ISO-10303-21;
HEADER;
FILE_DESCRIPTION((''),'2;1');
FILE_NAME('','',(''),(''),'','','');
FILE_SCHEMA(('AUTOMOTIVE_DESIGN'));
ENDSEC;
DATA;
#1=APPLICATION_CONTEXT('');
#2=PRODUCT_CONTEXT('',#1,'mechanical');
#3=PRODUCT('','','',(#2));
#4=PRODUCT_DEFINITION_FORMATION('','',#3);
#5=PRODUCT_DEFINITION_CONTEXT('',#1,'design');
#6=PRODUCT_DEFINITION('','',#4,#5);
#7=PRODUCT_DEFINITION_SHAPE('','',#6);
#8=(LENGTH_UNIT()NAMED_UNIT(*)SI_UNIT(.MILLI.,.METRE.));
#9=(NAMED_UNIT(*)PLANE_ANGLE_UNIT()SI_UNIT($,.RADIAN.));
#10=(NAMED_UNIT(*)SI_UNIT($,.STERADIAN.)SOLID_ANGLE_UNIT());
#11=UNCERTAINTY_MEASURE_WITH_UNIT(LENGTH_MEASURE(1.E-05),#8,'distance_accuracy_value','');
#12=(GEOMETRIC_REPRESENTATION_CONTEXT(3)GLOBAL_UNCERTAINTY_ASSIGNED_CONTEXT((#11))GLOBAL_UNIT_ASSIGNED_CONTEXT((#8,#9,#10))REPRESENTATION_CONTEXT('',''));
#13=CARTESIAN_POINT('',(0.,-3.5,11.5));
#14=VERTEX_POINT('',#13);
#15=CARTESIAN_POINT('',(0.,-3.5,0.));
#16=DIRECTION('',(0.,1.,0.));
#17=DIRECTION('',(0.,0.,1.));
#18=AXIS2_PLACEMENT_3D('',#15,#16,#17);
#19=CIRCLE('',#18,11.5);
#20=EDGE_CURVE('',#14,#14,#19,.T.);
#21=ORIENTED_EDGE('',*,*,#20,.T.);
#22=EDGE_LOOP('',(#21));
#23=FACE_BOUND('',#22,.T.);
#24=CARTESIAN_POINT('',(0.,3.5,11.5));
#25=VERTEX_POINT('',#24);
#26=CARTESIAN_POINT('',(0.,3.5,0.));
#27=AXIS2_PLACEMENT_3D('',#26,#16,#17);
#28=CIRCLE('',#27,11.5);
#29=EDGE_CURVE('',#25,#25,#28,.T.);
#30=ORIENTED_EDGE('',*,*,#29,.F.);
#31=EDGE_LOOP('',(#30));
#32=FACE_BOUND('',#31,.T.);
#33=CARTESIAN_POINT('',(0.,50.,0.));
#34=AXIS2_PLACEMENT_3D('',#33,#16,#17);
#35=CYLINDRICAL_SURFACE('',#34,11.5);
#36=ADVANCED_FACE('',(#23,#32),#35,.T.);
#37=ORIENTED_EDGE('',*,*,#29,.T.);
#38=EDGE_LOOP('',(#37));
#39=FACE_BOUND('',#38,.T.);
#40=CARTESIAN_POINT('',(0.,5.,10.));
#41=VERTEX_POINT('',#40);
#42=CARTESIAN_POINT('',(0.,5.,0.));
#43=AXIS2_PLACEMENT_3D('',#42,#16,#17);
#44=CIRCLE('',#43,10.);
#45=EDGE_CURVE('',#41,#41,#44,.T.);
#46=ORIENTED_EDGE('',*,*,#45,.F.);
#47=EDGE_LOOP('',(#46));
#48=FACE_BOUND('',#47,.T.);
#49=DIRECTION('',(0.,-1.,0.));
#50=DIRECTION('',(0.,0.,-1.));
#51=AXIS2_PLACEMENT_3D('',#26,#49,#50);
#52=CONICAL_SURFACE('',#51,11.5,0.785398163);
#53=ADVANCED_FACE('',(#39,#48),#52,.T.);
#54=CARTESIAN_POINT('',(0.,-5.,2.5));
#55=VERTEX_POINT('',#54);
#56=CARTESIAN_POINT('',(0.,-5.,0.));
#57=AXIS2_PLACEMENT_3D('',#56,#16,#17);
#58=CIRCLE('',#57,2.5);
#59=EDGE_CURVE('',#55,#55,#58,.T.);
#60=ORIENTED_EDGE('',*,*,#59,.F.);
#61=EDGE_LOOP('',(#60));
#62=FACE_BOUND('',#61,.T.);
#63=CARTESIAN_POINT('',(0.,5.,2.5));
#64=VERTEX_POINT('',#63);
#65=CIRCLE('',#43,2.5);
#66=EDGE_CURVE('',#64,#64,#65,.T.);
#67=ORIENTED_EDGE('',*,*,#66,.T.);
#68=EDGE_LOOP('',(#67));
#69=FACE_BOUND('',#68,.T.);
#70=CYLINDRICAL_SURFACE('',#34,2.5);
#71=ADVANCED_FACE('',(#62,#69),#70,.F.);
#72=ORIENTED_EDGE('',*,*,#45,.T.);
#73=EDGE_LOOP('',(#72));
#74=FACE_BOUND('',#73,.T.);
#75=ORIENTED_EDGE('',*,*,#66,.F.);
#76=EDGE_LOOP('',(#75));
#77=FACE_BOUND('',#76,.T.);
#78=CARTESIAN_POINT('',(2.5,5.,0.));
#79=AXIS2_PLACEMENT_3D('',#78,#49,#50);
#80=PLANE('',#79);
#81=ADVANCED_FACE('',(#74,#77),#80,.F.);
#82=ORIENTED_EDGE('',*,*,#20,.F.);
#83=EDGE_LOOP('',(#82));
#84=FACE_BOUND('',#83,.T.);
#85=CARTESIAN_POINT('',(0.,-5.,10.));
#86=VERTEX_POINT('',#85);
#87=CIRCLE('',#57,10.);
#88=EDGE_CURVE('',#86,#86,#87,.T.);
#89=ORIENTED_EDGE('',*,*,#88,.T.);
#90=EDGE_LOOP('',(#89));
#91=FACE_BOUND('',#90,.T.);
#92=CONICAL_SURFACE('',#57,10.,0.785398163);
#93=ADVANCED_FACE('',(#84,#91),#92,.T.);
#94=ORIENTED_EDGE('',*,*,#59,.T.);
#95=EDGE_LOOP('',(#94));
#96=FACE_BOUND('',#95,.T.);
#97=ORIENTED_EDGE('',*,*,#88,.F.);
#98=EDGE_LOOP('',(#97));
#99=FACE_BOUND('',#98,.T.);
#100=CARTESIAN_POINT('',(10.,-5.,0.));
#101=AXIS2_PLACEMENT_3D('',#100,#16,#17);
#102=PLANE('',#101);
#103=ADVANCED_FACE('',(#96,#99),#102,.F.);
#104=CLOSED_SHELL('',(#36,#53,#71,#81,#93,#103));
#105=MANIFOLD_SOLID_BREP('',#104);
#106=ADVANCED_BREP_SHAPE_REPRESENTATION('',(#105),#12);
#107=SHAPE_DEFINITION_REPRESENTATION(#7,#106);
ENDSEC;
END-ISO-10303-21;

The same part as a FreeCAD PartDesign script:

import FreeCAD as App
import Part
import Sketcher
Q = App.Units.Quantity

doc = App.newDocument("Part")
body = doc.addObject("PartDesign::Body", "Body")

# Sketch on XY plane
sketch1 = body.newObject("Sketcher::SketchObject", "Sketch")
sketch1.AttachmentSupport = (doc.getObject("XY_Plane"), [""])
sketch1.MapMode = "FlatFace"
sketch1.addGeometry([
    Part.LineSegment(App.Vector(10, 5, 0), App.Vector(2.5, 5, 0)),  # 0
    Part.LineSegment(App.Vector(2.5, 5, 0), App.Vector(2.5, -5, 0)),  # 1
    Part.LineSegment(App.Vector(2.5, -5, 0), App.Vector(10, -5, 0)),  # 2
    Part.LineSegment(App.Vector(10, -5, 0), App.Vector(11.5, -3.5, 0)),  # 3
    Part.LineSegment(App.Vector(11.5, -3.5, 0), App.Vector(11.5, 3.5, 0)),  # 4
    Part.LineSegment(App.Vector(11.5, 3.5, 0), App.Vector(10, 5, 0)),  # 5
], False)
sketch1.addConstraint([
    Sketcher.Constraint("Coincident", 0, 2, 1, 1),
    Sketcher.Constraint("Coincident", 1, 2, 2, 1),
    Sketcher.Constraint("Coincident", 2, 2, 3, 1),
    Sketcher.Constraint("Coincident", 3, 2, 4, 1),
    Sketcher.Constraint("Coincident", 4, 2, 5, 1),
    Sketcher.Constraint("Coincident", 5, 2, 0, 1),
    Sketcher.Constraint("Horizontal", 0),
    Sketcher.Constraint("Vertical", 1),
    Sketcher.Constraint("Horizontal", 2),
    Sketcher.Constraint("Vertical", 4),
    Sketcher.Constraint("Symmetric", 2, 2, 5, 2, -1),
    Sketcher.Constraint("Perpendicular", 3, 5),
    Sketcher.Constraint("Equal", 3, 5),
    Sketcher.Constraint("DistanceY", 1, 2, 1, 1, Q("10 mm")),
    Sketcher.Constraint("DistanceY", 4, 1, 4, 2, Q("7 mm")),
    Sketcher.Constraint("DistanceX", 0, 2, 0, 1, Q("7.5 mm")),
    Sketcher.Constraint("DistanceX", -1, 1, 2, 2, Q("10 mm")),
])
revolution = body.newObject("PartDesign::Revolution", "Revolution")
revolution.Profile = sketch1
revolution.ReferenceAxis = (sketch1, ["V_Axis"])
revolution.Angle = 360

doc.recompute()
